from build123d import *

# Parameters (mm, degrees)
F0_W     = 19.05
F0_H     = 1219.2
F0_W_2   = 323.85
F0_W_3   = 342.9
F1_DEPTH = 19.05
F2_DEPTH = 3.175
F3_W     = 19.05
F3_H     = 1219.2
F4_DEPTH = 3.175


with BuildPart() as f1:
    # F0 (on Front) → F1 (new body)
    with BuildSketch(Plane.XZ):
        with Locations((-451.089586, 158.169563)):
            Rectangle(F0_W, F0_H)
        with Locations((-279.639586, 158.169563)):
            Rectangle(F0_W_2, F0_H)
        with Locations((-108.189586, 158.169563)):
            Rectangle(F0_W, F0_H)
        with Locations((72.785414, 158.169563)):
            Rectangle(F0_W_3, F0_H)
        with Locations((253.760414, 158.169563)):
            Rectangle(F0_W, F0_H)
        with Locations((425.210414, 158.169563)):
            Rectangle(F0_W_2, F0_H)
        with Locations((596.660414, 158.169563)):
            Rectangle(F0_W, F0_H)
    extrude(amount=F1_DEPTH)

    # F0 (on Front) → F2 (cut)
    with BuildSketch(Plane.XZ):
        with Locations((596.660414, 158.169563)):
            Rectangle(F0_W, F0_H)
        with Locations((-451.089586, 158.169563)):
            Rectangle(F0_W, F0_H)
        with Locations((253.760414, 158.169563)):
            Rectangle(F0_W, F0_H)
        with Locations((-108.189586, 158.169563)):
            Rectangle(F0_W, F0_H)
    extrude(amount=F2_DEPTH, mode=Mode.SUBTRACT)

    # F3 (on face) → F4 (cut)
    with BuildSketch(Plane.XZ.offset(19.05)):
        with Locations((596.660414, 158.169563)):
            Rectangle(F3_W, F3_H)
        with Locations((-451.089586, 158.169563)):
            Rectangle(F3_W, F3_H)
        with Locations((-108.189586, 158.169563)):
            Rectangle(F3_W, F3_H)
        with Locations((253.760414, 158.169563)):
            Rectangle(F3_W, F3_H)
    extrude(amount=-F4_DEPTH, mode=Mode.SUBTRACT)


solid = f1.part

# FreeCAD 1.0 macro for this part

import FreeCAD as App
import Part
import Sketcher

V = App.Vector
Q = App.Units.Quantity


def add_polygon(sketch, points):
    """Adds a closed chain of lines whose ends are joined by coincident constraints."""
    first, n = sketch.GeometryCount, len(points)
    for a, b in zip(points, points[1:] + points[:1]):
        sketch.addGeometry(Part.LineSegment(App.Vector(*a, 0), App.Vector(*b, 0)), False)
    for i in range(n):
        sketch.addConstraint(Sketcher.Constraint("Coincident", first + i, 2, first + (i + 1) % n, 1))

doc = App.newDocument("Part")
body = doc.addObject("PartDesign::Body", "Body")

sketch1 = doc.addObject("Sketcher::SketchObject", "Sketch")
body.addObject(sketch1)
sketch1.AttachmentSupport = (doc.XZ_Plane, [""])
sketch1.MapMode = "FlatFace"
add_polygon(sketch1, [(-460.614586, 767.769563), (-460.614586, -451.430437), (606.185414, -451.430437), (606.185414, 767.769563)])
sketch1.addConstraint(Sketcher.Constraint("Vertical", 0))
sketch1.addConstraint(Sketcher.Constraint("Horizontal", 1))
sketch1.addConstraint(Sketcher.Constraint("Vertical", 2))
sketch1.addConstraint(Sketcher.Constraint("Horizontal", 3))
sketch1.addConstraint(Sketcher.Constraint("DistanceX", 1, 1, 1, 2, Q("42 in")))
sketch1.addConstraint(Sketcher.Constraint("DistanceY", 0, 2, 0, 1, Q("48 in")))
sketch1.addConstraint(Sketcher.Constraint("DistanceX", 0, 2, -1, 1, Q("460.614586 mm")))
sketch1.addConstraint(Sketcher.Constraint("DistanceY", 0, 2, -1, 1, Q("451.430437 mm")))
pad1 = doc.addObject("PartDesign::Pad", "Pad")
body.addObject(pad1)
pad1.Profile = sketch1
pad1.Length = Q("0.75 in")

sketch2 = doc.addObject("Sketcher::SketchObject", "Sketch001")
body.addObject(sketch2)
sketch2.AttachmentSupport = (doc.XZ_Plane, [""])
sketch2.MapMode = "FlatFace"
add_polygon(sketch2, [(587.135414, 767.769563), (587.135414, -451.430437), (606.185414, -451.430437), (606.185414, 767.769563)])
add_polygon(sketch2, [(-460.614586, 767.769563), (-460.614586, -451.430437), (-441.564586, -451.430437), (-441.564586, 767.769563)])
add_polygon(sketch2, [(244.235414, 767.769563), (244.235414, -451.430437), (263.285414, -451.430437), (263.285414, 767.769563)])
add_polygon(sketch2, [(-117.714586, 767.769563), (-117.714586, -451.430437), (-98.664586, -451.430437), (-98.664586, 767.769563)])
sketch2.addConstraint(Sketcher.Constraint("Vertical", 0))
sketch2.addConstraint(Sketcher.Constraint("Horizontal", 1))
sketch2.addConstraint(Sketcher.Constraint("Vertical", 2))
sketch2.addConstraint(Sketcher.Constraint("Horizontal", 3))
sketch2.addConstraint(Sketcher.Constraint("Vertical", 4))
sketch2.addConstraint(Sketcher.Constraint("Horizontal", 5))
sketch2.addConstraint(Sketcher.Constraint("Vertical", 6))
sketch2.addConstraint(Sketcher.Constraint("Horizontal", 7))
sketch2.addConstraint(Sketcher.Constraint("Vertical", 8))
sketch2.addConstraint(Sketcher.Constraint("Horizontal", 9))
sketch2.addConstraint(Sketcher.Constraint("Vertical", 10))
sketch2.addConstraint(Sketcher.Constraint("Horizontal", 11))
sketch2.addConstraint(Sketcher.Constraint("Vertical", 12))
sketch2.addConstraint(Sketcher.Constraint("Horizontal", 13))
sketch2.addConstraint(Sketcher.Constraint("Vertical", 14))
sketch2.addConstraint(Sketcher.Constraint("Horizontal", 15))
sketch2.addConstraint(Sketcher.Constraint("Horizontal", 1, 2, 4, 2))
sketch2.addConstraint(Sketcher.Constraint("Horizontal", 3, 2, 6, 2))
sketch2.addConstraint(Sketcher.Constraint("Horizontal", 5, 2, 8, 2))
sketch2.addConstraint(Sketcher.Constraint("Horizontal", 7, 2, 10, 2))
sketch2.addConstraint(Sketcher.Constraint("Horizontal", 9, 2, 12, 2))
sketch2.addConstraint(Sketcher.Constraint("Horizontal", 11, 2, 14, 2))
sketch2.addConstraint(Sketcher.Constraint("Equal", 3, 5))
sketch2.addConstraint(Sketcher.Constraint("Equal", 7, 9))
sketch2.addConstraint(Sketcher.Constraint("Equal", 11, 13))
sketch2.addConstraint(Sketcher.Constraint("DistanceY", 0, 2, 0, 1, Q("48 in")))
sketch2.addConstraint(Sketcher.Constraint("DistanceX", 4, 2, 1, 2, Q("42 in")))
sketch2.addConstraint(Sketcher.Constraint("DistanceX", 5, 2, 8, 2, Q("27 in")))
sketch2.addConstraint(Sketcher.Constraint("DistanceX", 12, 2, 9, 2, Q("15 in")))
sketch2.addConstraint(Sketcher.Constraint("DistanceX", 14, 2, 3, 2, Q("27 in")))
sketch2.addConstraint(Sketcher.Constraint("DistanceX", -1, 1, 0, 2, Q("587.135414 mm")))
sketch2.addConstraint(Sketcher.Constraint("DistanceY", 0, 2, -1, 1, Q("451.430437 mm")))
pocket1 = doc.addObject("PartDesign::Pocket", "Pocket")
body.addObject(pocket1)
pocket1.Profile = sketch2
pocket1.Length = Q("0.125 in")
pocket1.Reversed = True

sketch3 = doc.addObject("Sketcher::SketchObject", "Sketch002")
body.addObject(sketch3)
sketch3.AttachmentSupport = (doc.XZ_Plane, [""])
sketch3.MapMode = "FlatFace"
sketch3.AttachmentOffset = App.Placement(V(0, 0, 0.75 * 25.4), App.Rotation())
add_polygon(sketch3, [(587.135414, 767.769563), (587.135414, -451.430437), (606.185414, -451.430437), (606.185414, 767.769563)])
add_polygon(sketch3, [(-460.614586, 767.769563), (-460.614586, -451.430437), (-441.564586, -451.430437), (-441.564586, 767.769563)])
add_polygon(sketch3, [(-117.714586, 767.769563), (-117.714586, -451.430437), (-98.664586, -451.430437), (-98.664586, 767.769563)])
add_polygon(sketch3, [(244.235414, 767.769563), (244.235414, -451.430437), (263.285414, -451.430437), (263.285414, 767.769563)])
sketch3.addConstraint(Sketcher.Constraint("Vertical", 0))
sketch3.addConstraint(Sketcher.Constraint("Horizontal", 1))
sketch3.addConstraint(Sketcher.Constraint("Vertical", 2))
sketch3.addConstraint(Sketcher.Constraint("Horizontal", 3))
sketch3.addConstraint(Sketcher.Constraint("Vertical", 4))
sketch3.addConstraint(Sketcher.Constraint("Horizontal", 5))
sketch3.addConstraint(Sketcher.Constraint("Vertical", 6))
sketch3.addConstraint(Sketcher.Constraint("Horizontal", 7))
sketch3.addConstraint(Sketcher.Constraint("Vertical", 8))
sketch3.addConstraint(Sketcher.Constraint("Horizontal", 9))
sketch3.addConstraint(Sketcher.Constraint("Vertical", 10))
sketch3.addConstraint(Sketcher.Constraint("Horizontal", 11))
sketch3.addConstraint(Sketcher.Constraint("Vertical", 12))
sketch3.addConstraint(Sketcher.Constraint("Horizontal", 13))
sketch3.addConstraint(Sketcher.Constraint("Vertical", 14))
sketch3.addConstraint(Sketcher.Constraint("Horizontal", 15))
sketch3.addConstraint(Sketcher.Constraint("Horizontal", 1, 2, 4, 2))
sketch3.addConstraint(Sketcher.Constraint("Horizontal", 3, 2, 6, 2))
sketch3.addConstraint(Sketcher.Constraint("Horizontal", 5, 2, 8, 2))
sketch3.addConstraint(Sketcher.Constraint("Horizontal", 7, 2, 10, 2))
sketch3.addConstraint(Sketcher.Constraint("Horizontal", 9, 2, 12, 2))
sketch3.addConstraint(Sketcher.Constraint("Horizontal", 11, 2, 14, 2))
sketch3.addConstraint(Sketcher.Constraint("Equal", 3, 5))
sketch3.addConstraint(Sketcher.Constraint("Equal", 7, 9))
sketch3.addConstraint(Sketcher.Constraint("Equal", 11, 13))
sketch3.addConstraint(Sketcher.Constraint("DistanceY", 0, 2, 0, 1, Q("48 in")))
sketch3.addConstraint(Sketcher.Constraint("DistanceX", 4, 2, 1, 2, Q("42 in")))
sketch3.addConstraint(Sketcher.Constraint("DistanceX", 9, 2, 0, 2, Q("27 in")))
sketch3.addConstraint(Sketcher.Constraint("DistanceX", 5, 2, 12, 2, Q("27 in")))
sketch3.addConstraint(Sketcher.Constraint("DistanceX", 8, 2, 13, 2, Q("15 in")))
sketch3.addConstraint(Sketcher.Constraint("DistanceX", -1, 1, 0, 2, Q("587.135414 mm")))
sketch3.addConstraint(Sketcher.Constraint("DistanceY", 0, 2, -1, 1, Q("451.430437 mm")))
pocket2 = doc.addObject("PartDesign::Pocket", "Pocket001")
body.addObject(pocket2)
pocket2.Profile = sketch3
pocket2.Length = Q("0.125 in")

doc.recompute()
